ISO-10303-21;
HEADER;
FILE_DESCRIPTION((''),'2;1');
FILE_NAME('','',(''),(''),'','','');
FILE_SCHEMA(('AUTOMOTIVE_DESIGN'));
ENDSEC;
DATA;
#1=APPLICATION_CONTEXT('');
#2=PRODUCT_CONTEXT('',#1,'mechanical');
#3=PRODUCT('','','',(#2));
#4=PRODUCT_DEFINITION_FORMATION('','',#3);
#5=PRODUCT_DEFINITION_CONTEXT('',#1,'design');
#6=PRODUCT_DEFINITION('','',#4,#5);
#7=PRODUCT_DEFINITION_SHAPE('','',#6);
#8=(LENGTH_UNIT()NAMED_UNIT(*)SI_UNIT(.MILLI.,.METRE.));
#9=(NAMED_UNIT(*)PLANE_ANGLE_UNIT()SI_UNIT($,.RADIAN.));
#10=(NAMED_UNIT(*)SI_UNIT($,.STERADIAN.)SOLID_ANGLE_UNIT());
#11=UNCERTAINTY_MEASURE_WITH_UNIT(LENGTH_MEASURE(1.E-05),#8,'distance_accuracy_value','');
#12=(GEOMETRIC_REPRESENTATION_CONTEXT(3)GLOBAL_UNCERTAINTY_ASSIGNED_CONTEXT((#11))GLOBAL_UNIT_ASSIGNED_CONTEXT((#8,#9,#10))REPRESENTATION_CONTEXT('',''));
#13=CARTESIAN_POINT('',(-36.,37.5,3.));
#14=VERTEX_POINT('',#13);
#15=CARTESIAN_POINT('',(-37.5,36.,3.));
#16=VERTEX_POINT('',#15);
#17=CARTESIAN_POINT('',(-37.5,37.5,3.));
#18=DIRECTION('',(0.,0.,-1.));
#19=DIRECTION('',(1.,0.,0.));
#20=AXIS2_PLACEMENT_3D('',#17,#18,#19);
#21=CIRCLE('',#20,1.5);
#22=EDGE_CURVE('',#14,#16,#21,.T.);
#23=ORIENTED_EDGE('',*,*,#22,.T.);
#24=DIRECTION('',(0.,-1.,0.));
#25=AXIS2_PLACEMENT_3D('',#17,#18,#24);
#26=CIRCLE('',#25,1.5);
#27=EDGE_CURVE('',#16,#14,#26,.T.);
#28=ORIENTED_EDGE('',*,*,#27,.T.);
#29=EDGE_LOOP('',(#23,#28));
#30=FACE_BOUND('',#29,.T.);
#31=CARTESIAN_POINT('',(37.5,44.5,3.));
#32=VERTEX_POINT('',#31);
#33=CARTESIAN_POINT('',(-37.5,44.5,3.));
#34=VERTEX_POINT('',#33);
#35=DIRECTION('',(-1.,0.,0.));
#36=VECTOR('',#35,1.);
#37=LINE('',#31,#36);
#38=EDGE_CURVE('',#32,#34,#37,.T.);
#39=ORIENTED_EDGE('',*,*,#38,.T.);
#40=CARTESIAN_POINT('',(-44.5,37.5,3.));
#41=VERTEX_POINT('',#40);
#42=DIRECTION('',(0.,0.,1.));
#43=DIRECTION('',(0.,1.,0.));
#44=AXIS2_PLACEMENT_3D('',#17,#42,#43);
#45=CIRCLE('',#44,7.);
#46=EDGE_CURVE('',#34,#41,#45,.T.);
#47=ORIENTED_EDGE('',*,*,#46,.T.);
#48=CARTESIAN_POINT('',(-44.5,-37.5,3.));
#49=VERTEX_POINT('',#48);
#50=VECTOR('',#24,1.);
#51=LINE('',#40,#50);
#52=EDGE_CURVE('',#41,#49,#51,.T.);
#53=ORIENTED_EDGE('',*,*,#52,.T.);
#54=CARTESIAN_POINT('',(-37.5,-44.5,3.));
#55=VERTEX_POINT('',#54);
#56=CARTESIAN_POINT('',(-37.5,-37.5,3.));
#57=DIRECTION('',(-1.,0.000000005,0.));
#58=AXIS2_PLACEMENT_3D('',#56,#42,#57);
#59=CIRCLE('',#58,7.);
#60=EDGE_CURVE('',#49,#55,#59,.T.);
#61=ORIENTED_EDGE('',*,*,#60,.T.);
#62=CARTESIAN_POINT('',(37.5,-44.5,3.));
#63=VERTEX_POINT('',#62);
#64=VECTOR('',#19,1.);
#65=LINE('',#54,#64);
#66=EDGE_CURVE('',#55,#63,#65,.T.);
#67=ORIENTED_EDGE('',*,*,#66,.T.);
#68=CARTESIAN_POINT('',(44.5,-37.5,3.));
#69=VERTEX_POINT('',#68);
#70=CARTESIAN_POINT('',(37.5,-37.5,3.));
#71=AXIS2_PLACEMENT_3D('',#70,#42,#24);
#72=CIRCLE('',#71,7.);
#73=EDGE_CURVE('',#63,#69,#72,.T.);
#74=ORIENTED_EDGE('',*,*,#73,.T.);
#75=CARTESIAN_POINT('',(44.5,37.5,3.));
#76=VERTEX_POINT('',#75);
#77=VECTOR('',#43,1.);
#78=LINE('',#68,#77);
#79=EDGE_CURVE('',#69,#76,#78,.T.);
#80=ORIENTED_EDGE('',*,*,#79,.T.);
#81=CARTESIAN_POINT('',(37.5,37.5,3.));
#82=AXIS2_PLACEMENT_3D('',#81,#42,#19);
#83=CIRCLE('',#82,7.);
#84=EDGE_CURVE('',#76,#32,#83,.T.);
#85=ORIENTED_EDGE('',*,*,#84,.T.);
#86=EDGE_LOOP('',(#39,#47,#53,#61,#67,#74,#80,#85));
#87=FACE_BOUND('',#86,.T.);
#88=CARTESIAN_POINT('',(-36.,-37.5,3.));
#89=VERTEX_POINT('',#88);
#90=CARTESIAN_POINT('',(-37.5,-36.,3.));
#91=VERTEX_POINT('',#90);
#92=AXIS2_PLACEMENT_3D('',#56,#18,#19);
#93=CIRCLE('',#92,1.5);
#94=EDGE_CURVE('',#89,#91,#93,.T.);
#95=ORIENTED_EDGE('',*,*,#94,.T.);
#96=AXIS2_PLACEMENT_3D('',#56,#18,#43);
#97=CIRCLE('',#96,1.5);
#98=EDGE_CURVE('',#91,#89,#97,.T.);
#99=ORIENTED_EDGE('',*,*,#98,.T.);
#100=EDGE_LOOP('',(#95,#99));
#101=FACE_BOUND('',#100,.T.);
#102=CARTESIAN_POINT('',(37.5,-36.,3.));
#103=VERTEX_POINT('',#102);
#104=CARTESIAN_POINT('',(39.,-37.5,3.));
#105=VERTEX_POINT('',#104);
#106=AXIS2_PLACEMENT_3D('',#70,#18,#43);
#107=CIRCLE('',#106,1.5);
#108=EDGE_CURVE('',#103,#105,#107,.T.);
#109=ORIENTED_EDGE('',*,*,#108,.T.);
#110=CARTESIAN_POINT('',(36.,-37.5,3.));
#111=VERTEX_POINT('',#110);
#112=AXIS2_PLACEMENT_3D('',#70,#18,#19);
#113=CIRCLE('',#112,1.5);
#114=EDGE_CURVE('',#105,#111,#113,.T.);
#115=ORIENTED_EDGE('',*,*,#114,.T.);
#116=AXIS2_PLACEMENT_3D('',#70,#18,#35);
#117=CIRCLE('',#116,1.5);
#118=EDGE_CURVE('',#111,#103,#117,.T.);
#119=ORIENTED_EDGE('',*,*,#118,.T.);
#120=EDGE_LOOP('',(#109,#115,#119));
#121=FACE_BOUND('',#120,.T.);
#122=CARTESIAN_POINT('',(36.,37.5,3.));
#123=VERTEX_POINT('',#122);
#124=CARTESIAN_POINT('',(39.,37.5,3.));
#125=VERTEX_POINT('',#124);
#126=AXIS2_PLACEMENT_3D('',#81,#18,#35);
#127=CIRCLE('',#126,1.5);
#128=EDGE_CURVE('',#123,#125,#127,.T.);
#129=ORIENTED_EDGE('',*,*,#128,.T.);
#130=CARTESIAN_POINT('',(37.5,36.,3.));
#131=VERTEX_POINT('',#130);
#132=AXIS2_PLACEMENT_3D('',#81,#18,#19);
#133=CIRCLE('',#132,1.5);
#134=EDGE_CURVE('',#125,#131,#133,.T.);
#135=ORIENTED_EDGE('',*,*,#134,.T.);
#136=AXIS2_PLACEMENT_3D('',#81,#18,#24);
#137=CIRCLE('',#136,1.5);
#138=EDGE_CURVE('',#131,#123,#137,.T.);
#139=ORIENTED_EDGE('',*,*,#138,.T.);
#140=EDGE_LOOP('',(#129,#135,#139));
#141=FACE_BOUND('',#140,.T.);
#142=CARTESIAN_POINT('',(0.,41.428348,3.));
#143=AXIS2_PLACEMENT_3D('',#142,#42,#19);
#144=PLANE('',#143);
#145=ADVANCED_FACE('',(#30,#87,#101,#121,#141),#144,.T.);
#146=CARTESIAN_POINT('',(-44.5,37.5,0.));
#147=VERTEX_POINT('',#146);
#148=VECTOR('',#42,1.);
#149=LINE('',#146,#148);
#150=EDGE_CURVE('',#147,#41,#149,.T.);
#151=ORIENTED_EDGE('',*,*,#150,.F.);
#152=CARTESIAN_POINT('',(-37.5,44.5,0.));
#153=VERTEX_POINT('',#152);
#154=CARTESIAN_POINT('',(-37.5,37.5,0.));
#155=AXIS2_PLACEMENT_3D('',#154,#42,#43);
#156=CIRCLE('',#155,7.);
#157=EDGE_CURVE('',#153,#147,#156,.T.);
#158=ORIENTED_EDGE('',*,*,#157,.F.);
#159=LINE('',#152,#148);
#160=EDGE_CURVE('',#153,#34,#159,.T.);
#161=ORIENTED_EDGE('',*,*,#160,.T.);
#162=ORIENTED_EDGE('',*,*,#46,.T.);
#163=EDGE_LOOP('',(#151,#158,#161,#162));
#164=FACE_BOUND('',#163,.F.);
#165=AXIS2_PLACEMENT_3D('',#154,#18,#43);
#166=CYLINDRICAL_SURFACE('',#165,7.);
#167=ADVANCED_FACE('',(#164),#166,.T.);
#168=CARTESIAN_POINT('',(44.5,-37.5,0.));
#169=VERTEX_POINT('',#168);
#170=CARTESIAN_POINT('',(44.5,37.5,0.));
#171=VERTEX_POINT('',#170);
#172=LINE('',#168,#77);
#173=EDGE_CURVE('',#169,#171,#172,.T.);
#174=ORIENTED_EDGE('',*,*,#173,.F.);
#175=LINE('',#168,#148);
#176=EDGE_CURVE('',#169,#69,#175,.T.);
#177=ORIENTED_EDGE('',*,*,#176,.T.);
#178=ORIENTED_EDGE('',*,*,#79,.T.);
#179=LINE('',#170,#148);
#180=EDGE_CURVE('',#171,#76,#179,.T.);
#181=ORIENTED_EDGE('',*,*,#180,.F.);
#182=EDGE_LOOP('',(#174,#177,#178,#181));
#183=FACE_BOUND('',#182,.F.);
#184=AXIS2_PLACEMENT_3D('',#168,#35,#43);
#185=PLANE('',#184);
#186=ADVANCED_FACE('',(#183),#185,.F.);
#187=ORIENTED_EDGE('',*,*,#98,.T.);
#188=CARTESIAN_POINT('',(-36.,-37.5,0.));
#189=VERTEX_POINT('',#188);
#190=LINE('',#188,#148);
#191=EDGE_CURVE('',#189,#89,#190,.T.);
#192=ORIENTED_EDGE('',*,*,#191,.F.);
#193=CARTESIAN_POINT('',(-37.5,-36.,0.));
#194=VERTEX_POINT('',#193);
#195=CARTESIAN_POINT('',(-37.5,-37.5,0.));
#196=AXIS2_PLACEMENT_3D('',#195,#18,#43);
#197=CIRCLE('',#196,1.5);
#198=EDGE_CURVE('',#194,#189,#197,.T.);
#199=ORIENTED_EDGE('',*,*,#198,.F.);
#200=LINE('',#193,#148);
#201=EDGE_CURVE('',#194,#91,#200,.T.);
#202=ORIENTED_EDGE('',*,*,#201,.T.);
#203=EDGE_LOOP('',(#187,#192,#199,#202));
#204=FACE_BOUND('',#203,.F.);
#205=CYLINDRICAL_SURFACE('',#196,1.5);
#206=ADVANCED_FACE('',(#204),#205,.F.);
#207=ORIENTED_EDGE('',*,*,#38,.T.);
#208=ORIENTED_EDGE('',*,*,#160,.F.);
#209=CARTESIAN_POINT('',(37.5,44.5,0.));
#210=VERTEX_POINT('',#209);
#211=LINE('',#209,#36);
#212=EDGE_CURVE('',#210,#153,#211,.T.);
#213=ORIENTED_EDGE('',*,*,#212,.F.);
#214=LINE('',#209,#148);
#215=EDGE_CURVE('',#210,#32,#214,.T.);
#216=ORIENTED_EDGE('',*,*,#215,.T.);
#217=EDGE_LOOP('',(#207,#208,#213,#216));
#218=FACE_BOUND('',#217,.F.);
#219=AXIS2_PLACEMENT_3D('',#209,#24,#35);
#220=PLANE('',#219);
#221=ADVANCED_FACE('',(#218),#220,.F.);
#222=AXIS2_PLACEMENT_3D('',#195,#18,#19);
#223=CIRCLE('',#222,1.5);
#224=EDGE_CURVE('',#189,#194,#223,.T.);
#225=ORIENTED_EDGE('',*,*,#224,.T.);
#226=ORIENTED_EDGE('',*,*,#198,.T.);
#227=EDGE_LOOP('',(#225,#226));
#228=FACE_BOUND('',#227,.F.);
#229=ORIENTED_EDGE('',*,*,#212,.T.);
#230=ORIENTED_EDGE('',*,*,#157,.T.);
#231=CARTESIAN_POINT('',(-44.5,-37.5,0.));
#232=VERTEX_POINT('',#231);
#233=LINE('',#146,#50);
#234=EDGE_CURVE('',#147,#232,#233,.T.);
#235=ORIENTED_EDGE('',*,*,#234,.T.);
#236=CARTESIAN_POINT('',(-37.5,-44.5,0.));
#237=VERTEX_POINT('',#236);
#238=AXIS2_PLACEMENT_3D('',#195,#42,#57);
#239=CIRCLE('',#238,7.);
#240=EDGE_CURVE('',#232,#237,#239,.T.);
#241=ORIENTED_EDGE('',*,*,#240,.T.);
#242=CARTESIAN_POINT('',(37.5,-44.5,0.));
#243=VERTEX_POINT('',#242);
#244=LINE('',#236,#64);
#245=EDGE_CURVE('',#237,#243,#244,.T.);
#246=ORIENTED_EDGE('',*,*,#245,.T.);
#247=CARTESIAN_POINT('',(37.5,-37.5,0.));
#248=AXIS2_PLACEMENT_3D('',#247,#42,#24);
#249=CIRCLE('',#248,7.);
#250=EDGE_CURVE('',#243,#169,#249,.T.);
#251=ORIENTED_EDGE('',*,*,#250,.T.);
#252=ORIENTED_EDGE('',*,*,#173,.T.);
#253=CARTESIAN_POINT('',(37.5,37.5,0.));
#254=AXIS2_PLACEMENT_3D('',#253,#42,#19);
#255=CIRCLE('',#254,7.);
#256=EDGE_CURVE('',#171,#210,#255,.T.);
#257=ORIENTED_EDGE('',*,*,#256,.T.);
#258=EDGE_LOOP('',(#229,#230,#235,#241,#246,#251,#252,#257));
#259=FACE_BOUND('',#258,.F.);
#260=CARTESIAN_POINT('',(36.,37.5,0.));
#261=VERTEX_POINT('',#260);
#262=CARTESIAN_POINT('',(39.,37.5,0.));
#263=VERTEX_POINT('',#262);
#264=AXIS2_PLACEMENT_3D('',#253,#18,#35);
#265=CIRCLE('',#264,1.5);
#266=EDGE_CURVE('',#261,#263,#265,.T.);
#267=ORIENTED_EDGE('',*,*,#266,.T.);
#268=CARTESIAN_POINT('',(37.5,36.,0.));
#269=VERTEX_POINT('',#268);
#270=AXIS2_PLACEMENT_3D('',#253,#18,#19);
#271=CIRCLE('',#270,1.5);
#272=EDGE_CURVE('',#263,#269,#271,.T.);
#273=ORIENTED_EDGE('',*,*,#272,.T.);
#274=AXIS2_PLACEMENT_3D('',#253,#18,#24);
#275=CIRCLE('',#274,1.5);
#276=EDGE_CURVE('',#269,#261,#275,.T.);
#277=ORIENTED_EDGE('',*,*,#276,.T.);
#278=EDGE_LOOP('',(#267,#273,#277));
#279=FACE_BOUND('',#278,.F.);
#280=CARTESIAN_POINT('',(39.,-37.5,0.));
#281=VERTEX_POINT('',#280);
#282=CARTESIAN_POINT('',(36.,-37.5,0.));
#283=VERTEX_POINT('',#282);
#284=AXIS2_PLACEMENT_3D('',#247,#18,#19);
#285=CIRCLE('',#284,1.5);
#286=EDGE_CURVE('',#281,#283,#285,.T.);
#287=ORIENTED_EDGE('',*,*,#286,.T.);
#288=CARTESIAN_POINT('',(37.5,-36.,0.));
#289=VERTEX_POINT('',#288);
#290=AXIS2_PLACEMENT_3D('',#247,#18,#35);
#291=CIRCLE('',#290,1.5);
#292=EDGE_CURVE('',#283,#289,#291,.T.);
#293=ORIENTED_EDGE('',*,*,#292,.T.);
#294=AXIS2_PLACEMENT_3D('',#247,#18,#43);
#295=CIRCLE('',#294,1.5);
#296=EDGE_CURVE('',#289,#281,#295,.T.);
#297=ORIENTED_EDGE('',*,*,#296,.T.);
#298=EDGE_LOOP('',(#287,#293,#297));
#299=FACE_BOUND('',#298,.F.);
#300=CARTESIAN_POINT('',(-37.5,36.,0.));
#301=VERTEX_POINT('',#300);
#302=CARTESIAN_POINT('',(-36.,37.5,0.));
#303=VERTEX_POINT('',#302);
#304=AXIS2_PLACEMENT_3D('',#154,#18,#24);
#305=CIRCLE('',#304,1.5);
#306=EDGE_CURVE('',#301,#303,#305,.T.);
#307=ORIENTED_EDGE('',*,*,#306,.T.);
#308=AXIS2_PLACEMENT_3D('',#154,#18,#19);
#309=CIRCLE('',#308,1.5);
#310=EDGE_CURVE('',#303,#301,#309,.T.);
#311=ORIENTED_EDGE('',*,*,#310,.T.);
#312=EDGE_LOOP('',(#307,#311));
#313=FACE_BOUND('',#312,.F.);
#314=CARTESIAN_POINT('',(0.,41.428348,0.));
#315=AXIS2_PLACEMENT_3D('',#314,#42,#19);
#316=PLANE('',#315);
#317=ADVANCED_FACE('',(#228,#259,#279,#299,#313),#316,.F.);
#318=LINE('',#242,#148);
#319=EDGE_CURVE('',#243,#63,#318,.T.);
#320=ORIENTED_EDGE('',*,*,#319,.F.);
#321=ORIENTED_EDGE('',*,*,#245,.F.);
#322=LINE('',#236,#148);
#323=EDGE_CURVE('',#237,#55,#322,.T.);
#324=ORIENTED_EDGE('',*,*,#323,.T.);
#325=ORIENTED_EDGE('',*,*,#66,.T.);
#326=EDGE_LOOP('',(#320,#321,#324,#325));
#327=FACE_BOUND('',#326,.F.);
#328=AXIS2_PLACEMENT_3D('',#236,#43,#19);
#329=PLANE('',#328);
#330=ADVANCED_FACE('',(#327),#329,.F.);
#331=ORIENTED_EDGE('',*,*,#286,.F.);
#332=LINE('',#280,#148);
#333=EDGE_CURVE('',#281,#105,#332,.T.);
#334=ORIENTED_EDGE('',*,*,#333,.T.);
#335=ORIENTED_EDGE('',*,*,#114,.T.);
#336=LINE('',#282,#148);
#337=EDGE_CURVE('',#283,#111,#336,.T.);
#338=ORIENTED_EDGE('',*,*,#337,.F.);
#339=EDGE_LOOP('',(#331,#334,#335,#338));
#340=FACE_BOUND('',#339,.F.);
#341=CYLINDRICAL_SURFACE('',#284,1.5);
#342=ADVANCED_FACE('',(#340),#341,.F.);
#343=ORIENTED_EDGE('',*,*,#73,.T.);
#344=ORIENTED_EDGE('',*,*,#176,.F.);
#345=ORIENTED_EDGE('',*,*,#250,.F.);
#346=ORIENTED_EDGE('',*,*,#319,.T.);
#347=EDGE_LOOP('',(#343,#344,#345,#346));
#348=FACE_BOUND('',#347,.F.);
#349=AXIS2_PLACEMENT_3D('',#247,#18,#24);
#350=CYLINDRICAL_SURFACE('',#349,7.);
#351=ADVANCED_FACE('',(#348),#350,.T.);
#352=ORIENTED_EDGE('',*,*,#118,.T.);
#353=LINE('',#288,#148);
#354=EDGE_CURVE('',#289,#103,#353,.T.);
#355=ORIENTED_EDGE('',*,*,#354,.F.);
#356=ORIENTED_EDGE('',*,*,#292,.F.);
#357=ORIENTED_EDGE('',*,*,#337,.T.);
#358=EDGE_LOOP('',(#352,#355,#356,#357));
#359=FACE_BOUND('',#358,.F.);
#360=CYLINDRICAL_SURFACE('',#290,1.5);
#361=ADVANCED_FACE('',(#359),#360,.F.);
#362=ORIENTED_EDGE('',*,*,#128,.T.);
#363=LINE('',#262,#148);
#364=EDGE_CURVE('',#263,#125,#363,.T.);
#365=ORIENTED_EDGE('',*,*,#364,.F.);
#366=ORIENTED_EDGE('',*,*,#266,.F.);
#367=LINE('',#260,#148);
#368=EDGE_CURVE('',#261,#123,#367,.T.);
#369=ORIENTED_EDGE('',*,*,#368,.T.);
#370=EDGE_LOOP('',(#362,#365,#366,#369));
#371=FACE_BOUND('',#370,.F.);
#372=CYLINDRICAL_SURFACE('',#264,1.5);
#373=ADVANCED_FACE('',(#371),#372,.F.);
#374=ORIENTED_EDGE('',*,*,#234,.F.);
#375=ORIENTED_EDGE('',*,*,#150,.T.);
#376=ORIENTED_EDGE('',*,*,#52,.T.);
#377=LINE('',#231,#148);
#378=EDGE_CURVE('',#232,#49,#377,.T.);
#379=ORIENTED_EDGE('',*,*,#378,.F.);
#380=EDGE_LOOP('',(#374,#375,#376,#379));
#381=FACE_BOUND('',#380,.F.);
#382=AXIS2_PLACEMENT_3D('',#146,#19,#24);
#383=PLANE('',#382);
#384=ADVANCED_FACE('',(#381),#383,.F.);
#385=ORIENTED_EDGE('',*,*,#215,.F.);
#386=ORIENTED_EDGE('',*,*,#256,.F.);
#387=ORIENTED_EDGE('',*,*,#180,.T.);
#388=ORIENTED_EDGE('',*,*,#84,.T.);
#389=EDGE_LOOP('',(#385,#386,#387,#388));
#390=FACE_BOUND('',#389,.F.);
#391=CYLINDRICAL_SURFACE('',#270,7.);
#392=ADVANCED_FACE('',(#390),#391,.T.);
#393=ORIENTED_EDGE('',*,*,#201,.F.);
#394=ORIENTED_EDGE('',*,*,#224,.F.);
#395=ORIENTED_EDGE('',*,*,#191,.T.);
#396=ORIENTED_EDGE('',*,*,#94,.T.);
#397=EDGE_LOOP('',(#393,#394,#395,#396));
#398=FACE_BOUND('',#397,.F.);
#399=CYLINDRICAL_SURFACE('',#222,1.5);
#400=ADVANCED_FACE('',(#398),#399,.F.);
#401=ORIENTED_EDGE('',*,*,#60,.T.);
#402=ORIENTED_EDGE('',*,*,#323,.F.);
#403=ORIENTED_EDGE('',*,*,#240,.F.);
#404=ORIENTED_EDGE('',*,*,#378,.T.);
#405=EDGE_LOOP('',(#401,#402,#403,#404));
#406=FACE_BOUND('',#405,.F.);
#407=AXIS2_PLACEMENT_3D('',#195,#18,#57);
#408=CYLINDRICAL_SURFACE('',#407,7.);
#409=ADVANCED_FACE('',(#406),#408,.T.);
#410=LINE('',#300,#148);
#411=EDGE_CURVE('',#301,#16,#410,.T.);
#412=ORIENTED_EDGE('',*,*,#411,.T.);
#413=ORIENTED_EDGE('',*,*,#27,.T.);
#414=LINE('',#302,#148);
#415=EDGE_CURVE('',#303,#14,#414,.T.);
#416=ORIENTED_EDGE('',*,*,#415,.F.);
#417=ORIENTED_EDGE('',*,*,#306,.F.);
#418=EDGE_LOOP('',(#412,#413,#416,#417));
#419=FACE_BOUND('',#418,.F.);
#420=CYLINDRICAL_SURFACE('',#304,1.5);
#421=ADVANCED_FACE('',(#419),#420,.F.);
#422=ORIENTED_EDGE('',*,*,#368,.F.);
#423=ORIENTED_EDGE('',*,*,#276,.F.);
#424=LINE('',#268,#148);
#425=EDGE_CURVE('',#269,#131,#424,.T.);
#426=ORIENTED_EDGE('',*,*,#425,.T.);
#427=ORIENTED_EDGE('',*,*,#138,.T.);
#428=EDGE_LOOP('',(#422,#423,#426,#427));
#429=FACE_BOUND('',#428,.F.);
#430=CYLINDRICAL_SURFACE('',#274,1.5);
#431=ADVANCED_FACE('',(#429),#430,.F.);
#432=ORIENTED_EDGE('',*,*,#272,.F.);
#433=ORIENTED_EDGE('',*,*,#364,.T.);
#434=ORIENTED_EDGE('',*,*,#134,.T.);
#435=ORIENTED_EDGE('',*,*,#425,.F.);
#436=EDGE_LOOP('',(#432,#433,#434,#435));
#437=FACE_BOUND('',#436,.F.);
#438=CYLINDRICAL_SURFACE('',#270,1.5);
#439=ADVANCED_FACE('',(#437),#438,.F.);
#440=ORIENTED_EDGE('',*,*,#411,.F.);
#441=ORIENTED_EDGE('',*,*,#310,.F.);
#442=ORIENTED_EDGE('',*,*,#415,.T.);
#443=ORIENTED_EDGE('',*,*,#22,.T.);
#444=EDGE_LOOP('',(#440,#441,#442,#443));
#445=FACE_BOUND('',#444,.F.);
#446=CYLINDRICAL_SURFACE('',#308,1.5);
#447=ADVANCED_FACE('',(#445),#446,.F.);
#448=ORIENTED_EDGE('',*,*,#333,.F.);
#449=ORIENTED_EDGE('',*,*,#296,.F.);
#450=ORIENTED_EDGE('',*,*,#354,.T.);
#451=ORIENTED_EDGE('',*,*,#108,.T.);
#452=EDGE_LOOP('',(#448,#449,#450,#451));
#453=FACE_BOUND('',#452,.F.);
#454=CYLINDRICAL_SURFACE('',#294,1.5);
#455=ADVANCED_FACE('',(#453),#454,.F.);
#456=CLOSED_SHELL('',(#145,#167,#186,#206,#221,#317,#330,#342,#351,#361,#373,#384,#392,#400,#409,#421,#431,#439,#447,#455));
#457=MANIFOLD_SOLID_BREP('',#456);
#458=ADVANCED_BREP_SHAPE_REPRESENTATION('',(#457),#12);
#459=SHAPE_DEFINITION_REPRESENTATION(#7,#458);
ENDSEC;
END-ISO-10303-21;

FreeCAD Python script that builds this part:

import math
import FreeCAD as App
import Part
import Sketcher
Q = App.Units.Quantity

doc = App.newDocument("Part")
body = doc.addObject("PartDesign::Body", "Body")

# Sketch on XY plane
sketch1 = doc.addObject("Sketcher::SketchObject", "Sketch")
body.addObject(sketch1)
sketch1.AttachmentSupport = (doc.XY_Plane, [""])
sketch1.MapMode = "FlatFace"
sketch1.addGeometry([
    Part.LineSegment(App.Vector(-37.5, -44.5, 0), App.Vector(37.5, -44.5, 0)),  # 0
    Part.ArcOfCircle(Part.Circle(App.Vector(37.5, -37.5, 0), App.Vector(0, 0, 1), 7), math.radians(-90), math.radians(0)),  # 1
    Part.LineSegment(App.Vector(44.5, -37.5, 0), App.Vector(44.5, 37.5, 0)),  # 2
    Part.ArcOfCircle(Part.Circle(App.Vector(37.5, 37.5, 0), App.Vector(0, 0, 1), 7), math.radians(0), math.radians(90)),  # 3
    Part.LineSegment(App.Vector(37.5, 44.5, 0), App.Vector(-37.5, 44.5, 0)),  # 4
    Part.ArcOfCircle(Part.Circle(App.Vector(-37.5, 37.5, 0), App.Vector(0, 0, 1), 7), math.radians(90), math.radians(180)),  # 5
    Part.LineSegment(App.Vector(-44.5, 37.5, 0), App.Vector(-44.5, -37.5, 0)),  # 6
    Part.ArcOfCircle(Part.Circle(App.Vector(-37.5, -37.5, 0), App.Vector(0, 0, 1), 7), math.radians(180), math.radians(270)),  # 7
    Part.ArcOfCircle(Part.Circle(App.Vector(37.5, 37.5, 0), App.Vector(0, 0, 1), 1.5), math.radians(0), math.radians(180)),  # 8
    Part.ArcOfCircle(Part.Circle(App.Vector(37.5, 37.5, 0), App.Vector(0, 0, 1), 1.5), math.radians(-90), math.radians(0)),  # 9
    Part.ArcOfCircle(Part.Circle(App.Vector(37.5, 37.5, 0), App.Vector(0, 0, 1), 1.5), math.radians(180), math.radians(270)),  # 10
    Part.ArcOfCircle(Part.Circle(App.Vector(37.5, -37.5, 0), App.Vector(0, 0, 1), 1.5), math.radians(0), math.radians(90)),  # 11
    Part.ArcOfCircle(Part.Circle(App.Vector(37.5, -37.5, 0), App.Vector(0, 0, 1), 1.5), math.radians(180), math.radians(360)),  # 12
    Part.ArcOfCircle(Part.Circle(App.Vector(37.5, -37.5, 0), App.Vector(0, 0, 1), 1.5), math.radians(90), math.radians(180)),  # 13
    Part.ArcOfCircle(Part.Circle(App.Vector(-37.5, -37.5, 0), App.Vector(0, 0, 1), 1.5), math.radians(90), math.radians(360)),  # 14
    Part.ArcOfCircle(Part.Circle(App.Vector(-37.5, -37.5, 0), App.Vector(0, 0, 1), 1.5), math.radians(0), math.radians(90)),  # 15
    Part.ArcOfCircle(Part.Circle(App.Vector(-37.5, 37.5, 0), App.Vector(0, 0, 1), 1.5), math.radians(0), math.radians(270)),  # 16
    Part.ArcOfCircle(Part.Circle(App.Vector(-37.5, 37.5, 0), App.Vector(0, 0, 1), 1.5), math.radians(-90), math.radians(0)),  # 17
], False)
sketch1.addConstraint([
    Sketcher.Constraint("Tangent", 0, 2, 1, 1),
    Sketcher.Constraint("Tangent", 1, 2, 2, 1),
    Sketcher.Constraint("Tangent", 2, 2, 3, 1),
    Sketcher.Constraint("Tangent", 3, 2, 4, 1),
    Sketcher.Constraint("Tangent", 4, 2, 5, 1),
    Sketcher.Constraint("Tangent", 5, 2, 6, 1),
    Sketcher.Constraint("Tangent", 6, 2, 7, 1),
    Sketcher.Constraint("Tangent", 7, 2, 0, 1),
    Sketcher.Constraint("Tangent", 8, 1, 9, 2),
    Sketcher.Constraint("Tangent", 9, 1, 10, 2),
    Sketcher.Constraint("Tangent", 10, 1, 8, 2),
    Sketcher.Constraint("Tangent", 11, 1, 12, 2),
    Sketcher.Constraint("Tangent", 12, 1, 13, 2),
    Sketcher.Constraint("Tangent", 13, 1, 11, 2),
    Sketcher.Constraint("Tangent", 14, 1, 15, 2),
    Sketcher.Constraint("Coincident", 15, 1, 14, 2),
    Sketcher.Constraint("Tangent", 16, 1, 17, 2),
    Sketcher.Constraint("Coincident", 17, 1, 16, 2),
    Sketcher.Constraint("Horizontal", 0),
    Sketcher.Constraint("Vertical", 2),
    Sketcher.Constraint("Horizontal", 4),
    Sketcher.Constraint("Vertical", 6),
    Sketcher.Constraint("Coincident", 8, 3, 3, 3),
    Sketcher.Constraint("Coincident", 11, 3, 1, 3),
    Sketcher.Constraint("Coincident", 14, 3, 7, 3),
    Sketcher.Constraint("Coincident", 16, 3, 5, 3),
    Sketcher.Constraint("Equal", 1, 3),
    Sketcher.Constraint("Equal", 3, 5),
    Sketcher.Constraint("Equal", 5, 7),
    Sketcher.Constraint("Equal", 10, 11),
    Sketcher.Constraint("Equal", 13, 14),
    Sketcher.Constraint("Equal", 15, 16),
    Sketcher.Constraint("Symmetric", 1, 3, 5, 3, -1, 1),
    Sketcher.Constraint("Horizontal", 5, 2, 8, 1),
    Sketcher.Constraint("Horizontal", 8, 1, 10, 1),
    Sketcher.Constraint("Horizontal", 6, 2, 11, 1),
    Sketcher.Constraint("Horizontal", 11, 1, 12, 1),
    Sketcher.Constraint("Horizontal", 12, 1, 15, 1),
    Sketcher.Constraint("Horizontal", 10, 1, 16, 1),
    Sketcher.Constraint("Vertical", 3, 2, 9, 1),
    Sketcher.Constraint("Vertical", 9, 1, 13, 1),
    Sketcher.Constraint("Vertical", 7, 2, 14, 1),
    Sketcher.Constraint("Vertical", 14, 1, 17, 1),
    Sketcher.Constraint("Equal", 4, 2),
    Sketcher.Constraint("Radius", 1, Q("7 mm")),
    Sketcher.Constraint("Radius", 8, Q("1.5 mm")),
    Sketcher.Constraint("DistanceX", 0, 1, 0, 2, Q("75 mm")),
])
pad1 = doc.addObject("PartDesign::Pad", "Pad")
body.addObject(pad1)
pad1.Profile = sketch1
pad1.Length = 3

doc.recompute()
